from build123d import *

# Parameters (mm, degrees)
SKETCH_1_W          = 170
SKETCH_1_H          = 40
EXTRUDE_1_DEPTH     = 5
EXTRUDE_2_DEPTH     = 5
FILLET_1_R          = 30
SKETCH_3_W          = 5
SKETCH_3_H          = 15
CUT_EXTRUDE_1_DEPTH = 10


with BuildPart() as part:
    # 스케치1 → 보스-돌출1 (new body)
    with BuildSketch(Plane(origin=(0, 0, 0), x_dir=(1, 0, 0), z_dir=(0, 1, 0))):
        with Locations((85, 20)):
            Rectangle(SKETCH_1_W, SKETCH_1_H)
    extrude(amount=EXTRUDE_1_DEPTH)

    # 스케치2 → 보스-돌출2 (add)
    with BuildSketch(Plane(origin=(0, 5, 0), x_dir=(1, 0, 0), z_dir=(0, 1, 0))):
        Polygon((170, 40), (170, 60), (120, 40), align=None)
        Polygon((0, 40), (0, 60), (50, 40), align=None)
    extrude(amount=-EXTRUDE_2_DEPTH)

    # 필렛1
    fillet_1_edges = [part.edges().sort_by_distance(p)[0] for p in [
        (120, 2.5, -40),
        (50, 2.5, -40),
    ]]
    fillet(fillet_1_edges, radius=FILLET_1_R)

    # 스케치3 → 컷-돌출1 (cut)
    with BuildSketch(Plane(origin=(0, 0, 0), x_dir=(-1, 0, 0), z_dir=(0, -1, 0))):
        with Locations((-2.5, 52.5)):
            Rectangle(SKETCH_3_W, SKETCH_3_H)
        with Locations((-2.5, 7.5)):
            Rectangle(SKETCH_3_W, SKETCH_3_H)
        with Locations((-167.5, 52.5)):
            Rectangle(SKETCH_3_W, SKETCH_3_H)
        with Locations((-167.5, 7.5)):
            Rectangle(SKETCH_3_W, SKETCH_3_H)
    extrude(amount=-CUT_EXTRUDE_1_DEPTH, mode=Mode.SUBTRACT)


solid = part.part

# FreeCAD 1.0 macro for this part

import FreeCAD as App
import Part
import Sketcher
Q = App.Units.Quantity


def edges_at(feature, points):
    """Names of the edges that pass closest to the given points."""
    edges = feature.Shape.Edges
    near = lambda p: min(range(len(edges)), key=lambda i: edges[i].distToShape(Part.Vertex(*p))[0])
    return sorted({f"Edge{near(p) + 1}" for p in points})

doc = App.newDocument("Part")
body = doc.addObject("PartDesign::Body", "Body")

sketch1 = body.newObject("Sketcher::SketchObject", "Sketch")
sketch1.AttachmentSupport = (doc.getObject("XZ_Plane"), [""])
sketch1.MapMode = "FlatFace"
sketch1.addGeometry([
    Part.LineSegment(App.Vector(0, -40, 0), App.Vector(0, 0, 0)),
    Part.LineSegment(App.Vector(0, 0, 0), App.Vector(170, 0, 0)),
    Part.LineSegment(App.Vector(170, 0, 0), App.Vector(170, -40, 0)),
    Part.LineSegment(App.Vector(170, -40, 0), App.Vector(0, -40, 0)),
], False)
sketch1.addConstraint([
    Sketcher.Constraint("Coincident", 0, 2, 1, 1),
    Sketcher.Constraint("Coincident", 1, 2, 2, 1),
    Sketcher.Constraint("Coincident", 2, 2, 3, 1),
    Sketcher.Constraint("Coincident", 3, 2, 0, 1),
    Sketcher.Constraint("Vertical", 0),
    Sketcher.Constraint("Horizontal", 1),
    Sketcher.Constraint("Vertical", 2),
    Sketcher.Constraint("Horizontal", 3),
    Sketcher.Constraint("Coincident", 0, 2, -1, 1),
    Sketcher.Constraint("DistanceX", 1, 1, 1, 2, Q("170 mm")),
    Sketcher.Constraint("DistanceY", 0, 1, 0, 2, Q("40 mm")),
])
pad1 = body.newObject("PartDesign::Pad", "Pad")
pad1.Profile = sketch1
pad1.Length = 5
pad1.Reversed = True

sketch2 = body.newObject("Sketcher::SketchObject", "Sketch001")
sketch2.AttachmentSupport = (doc.getObject("XZ_Plane"), [""])
sketch2.MapMode = "FlatFace"
sketch2.AttachmentOffset = App.Placement(App.Vector(0, 0, -5), App.Rotation())
sketch2.addGeometry([
    Part.LineSegment(App.Vector(170, -40, 0), App.Vector(170, -60, 0)),
    Part.LineSegment(App.Vector(170, -60, 0), App.Vector(120, -40, 0)),
    Part.LineSegment(App.Vector(120, -40, 0), App.Vector(170, -40, 0)),
    Part.LineSegment(App.Vector(0, -60, 0), App.Vector(0, -40, 0)),
    Part.LineSegment(App.Vector(0, -40, 0), App.Vector(50, -40, 0)),
    Part.LineSegment(App.Vector(50, -40, 0), App.Vector(0, -60, 0)),
], False)
sketch2.addConstraint([
    Sketcher.Constraint("Coincident", 0, 2, 1, 1),
    Sketcher.Constraint("Coincident", 1, 2, 2, 1),
    Sketcher.Constraint("Coincident", 2, 2, 0, 1),
    Sketcher.Constraint("Coincident", 3, 2, 4, 1),
    Sketcher.Constraint("Coincident", 4, 2, 5, 1),
    Sketcher.Constraint("Coincident", 5, 2, 3, 1),
    Sketcher.Constraint("Vertical", 0),
    Sketcher.Constraint("Horizontal", 2),
    Sketcher.Constraint("Vertical", 3),
    Sketcher.Constraint("Horizontal", 4),
    Sketcher.Constraint("PointOnObject", 3, 2, -2),
    Sketcher.Constraint("Horizontal", 2, 2, 3, 2),
    Sketcher.Constraint("Horizontal", 0, 2, 5, 2),
    Sketcher.Constraint("Equal", 2, 4),
    Sketcher.Constraint("DistanceX", 2, 1, 2, 2, Q("50 mm")),
    Sketcher.Constraint("DistanceY", 0, 2, 0, 1, Q("20 mm")),
    Sketcher.Constraint("DistanceX", -1, 1, 0, 2, Q("170 mm")),
    Sketcher.Constraint("DistanceY", 0, 2, -1, 1, Q("60 mm")),
])
pad2 = body.newObject("PartDesign::Pad", "Pad001")
pad2.Profile = sketch2
pad2.Length = 5
doc.recompute()

fillet = body.newObject("PartDesign::Fillet", "Fillet")
fillet.Base = (pad2, edges_at(pad2, [(120, 2.5, -40), (50, 2.5, -40)]))
fillet.Radius = 30

sketch3 = body.newObject("Sketcher::SketchObject", "Sketch002")
sketch3.AttachmentSupport = (doc.getObject("XZ_Plane"), [""])
sketch3.MapMode = "FlatFace"
sketch3.addGeometry([
    Part.LineSegment(App.Vector(5, -60, 0), App.Vector(5, -45, 0)),
    Part.LineSegment(App.Vector(5, -45, 0), App.Vector(0, -45, 0)),
    Part.LineSegment(App.Vector(0, -45, 0), App.Vector(0, -60, 0)),
    Part.LineSegment(App.Vector(0, -60, 0), App.Vector(5, -60, 0)),
    Part.LineSegment(App.Vector(5, -15, 0), App.Vector(5, 0, 0)),
    Part.LineSegment(App.Vector(5, 0, 0), App.Vector(0, 0, 0)),
    Part.LineSegment(App.Vector(0, 0, 0), App.Vector(0, -15, 0)),
    Part.LineSegment(App.Vector(0, -15, 0), App.Vector(5, -15, 0)),
    Part.LineSegment(App.Vector(170, -60, 0), App.Vector(170, -45, 0)),
    Part.LineSegment(App.Vector(170, -45, 0), App.Vector(165, -45, 0)),
    Part.LineSegment(App.Vector(165, -45, 0), App.Vector(165, -60, 0)),
    Part.LineSegment(App.Vector(165, -60, 0), App.Vector(170, -60, 0)),
    Part.LineSegment(App.Vector(170, -15, 0), App.Vector(170, 0, 0)),
    Part.LineSegment(App.Vector(170, 0, 0), App.Vector(165, 0, 0)),
    Part.LineSegment(App.Vector(165, 0, 0), App.Vector(165, -15, 0)),
    Part.LineSegment(App.Vector(165, -15, 0), App.Vector(170, -15, 0)),
], False)
sketch3.addConstraint([
    Sketcher.Constraint("Coincident", 0, 2, 1, 1),
    Sketcher.Constraint("Coincident", 1, 2, 2, 1),
    Sketcher.Constraint("Coincident", 2, 2, 3, 1),
    Sketcher.Constraint("Coincident", 3, 2, 0, 1),
    Sketcher.Constraint("Coincident", 4, 2, 5, 1),
    Sketcher.Constraint("Coincident", 5, 2, 6, 1),
    Sketcher.Constraint("Coincident", 6, 2, 7, 1),
    Sketcher.Constraint("Coincident", 7, 2, 4, 1),
    Sketcher.Constraint("Coincident", 8, 2, 9, 1),
    Sketcher.Constraint("Coincident", 9, 2, 10, 1),
    Sketcher.Constraint("Coincident", 10, 2, 11, 1),
    Sketcher.Constraint("Coincident", 11, 2, 8, 1),
    Sketcher.Constraint("Coincident", 12, 2, 13, 1),
    Sketcher.Constraint("Coincident", 13, 2, 14, 1),
    Sketcher.Constraint("Coincident", 14, 2, 15, 1),
    Sketcher.Constraint("Coincident", 15, 2, 12, 1),
    Sketcher.Constraint("Vertical", 0),
    Sketcher.Constraint("Horizontal", 1),
    Sketcher.Constraint("Vertical", 2),
    Sketcher.Constraint("Horizontal", 3),
    Sketcher.Constraint("Vertical", 4),
    Sketcher.Constraint("Horizontal", 5),
    Sketcher.Constraint("Vertical", 6),
    Sketcher.Constraint("Horizontal", 7),
    Sketcher.Constraint("Vertical", 8),
    Sketcher.Constraint("Horizontal", 9),
    Sketcher.Constraint("Vertical", 10),
    Sketcher.Constraint("Horizontal", 11),
    Sketcher.Constraint("Vertical", 12),
    Sketcher.Constraint("Horizontal", 13),
    Sketcher.Constraint("Vertical", 14),
    Sketcher.Constraint("Horizontal", 15),
    Sketcher.Constraint("Coincident", 5, 2, -1, 1),
    Sketcher.Constraint("PointOnObject", 1, 2, -2),
    Sketcher.Constraint("PointOnObject", 12, 2, -1),
    Sketcher.Constraint("Horizontal", 1, 2, 8, 2),
    Sketcher.Constraint("Horizontal", 3, 2, 10, 2),
    Sketcher.Constraint("Horizontal", 7, 2, 14, 2),
    Sketcher.Constraint("Vertical", 3, 2, 4, 2),
    Sketcher.Constraint("Vertical", 11, 2, 12, 2),
    Sketcher.Constraint("Vertical", 10, 2, 13, 2),
    Sketcher.Constraint("Equal", 7, 9),
    Sketcher.Constraint("Equal", 2, 4),
    Sketcher.Constraint("DistanceX", 1, 2, 1, 1, Q("5 mm")),
    Sketcher.Constraint("DistanceY", 0, 1, 0, 2, Q("15 mm")),
    Sketcher.Constraint("DistanceY", 0, 2, -1, 1, Q("45 mm")),
    Sketcher.Constraint("DistanceX", -1, 1, 8, 2, Q("170 mm")),
])
pocket1 = body.newObject("PartDesign::Pocket", "Pocket")
pocket1.Profile = sketch3
pocket1.Length = 10

doc.recompute()
